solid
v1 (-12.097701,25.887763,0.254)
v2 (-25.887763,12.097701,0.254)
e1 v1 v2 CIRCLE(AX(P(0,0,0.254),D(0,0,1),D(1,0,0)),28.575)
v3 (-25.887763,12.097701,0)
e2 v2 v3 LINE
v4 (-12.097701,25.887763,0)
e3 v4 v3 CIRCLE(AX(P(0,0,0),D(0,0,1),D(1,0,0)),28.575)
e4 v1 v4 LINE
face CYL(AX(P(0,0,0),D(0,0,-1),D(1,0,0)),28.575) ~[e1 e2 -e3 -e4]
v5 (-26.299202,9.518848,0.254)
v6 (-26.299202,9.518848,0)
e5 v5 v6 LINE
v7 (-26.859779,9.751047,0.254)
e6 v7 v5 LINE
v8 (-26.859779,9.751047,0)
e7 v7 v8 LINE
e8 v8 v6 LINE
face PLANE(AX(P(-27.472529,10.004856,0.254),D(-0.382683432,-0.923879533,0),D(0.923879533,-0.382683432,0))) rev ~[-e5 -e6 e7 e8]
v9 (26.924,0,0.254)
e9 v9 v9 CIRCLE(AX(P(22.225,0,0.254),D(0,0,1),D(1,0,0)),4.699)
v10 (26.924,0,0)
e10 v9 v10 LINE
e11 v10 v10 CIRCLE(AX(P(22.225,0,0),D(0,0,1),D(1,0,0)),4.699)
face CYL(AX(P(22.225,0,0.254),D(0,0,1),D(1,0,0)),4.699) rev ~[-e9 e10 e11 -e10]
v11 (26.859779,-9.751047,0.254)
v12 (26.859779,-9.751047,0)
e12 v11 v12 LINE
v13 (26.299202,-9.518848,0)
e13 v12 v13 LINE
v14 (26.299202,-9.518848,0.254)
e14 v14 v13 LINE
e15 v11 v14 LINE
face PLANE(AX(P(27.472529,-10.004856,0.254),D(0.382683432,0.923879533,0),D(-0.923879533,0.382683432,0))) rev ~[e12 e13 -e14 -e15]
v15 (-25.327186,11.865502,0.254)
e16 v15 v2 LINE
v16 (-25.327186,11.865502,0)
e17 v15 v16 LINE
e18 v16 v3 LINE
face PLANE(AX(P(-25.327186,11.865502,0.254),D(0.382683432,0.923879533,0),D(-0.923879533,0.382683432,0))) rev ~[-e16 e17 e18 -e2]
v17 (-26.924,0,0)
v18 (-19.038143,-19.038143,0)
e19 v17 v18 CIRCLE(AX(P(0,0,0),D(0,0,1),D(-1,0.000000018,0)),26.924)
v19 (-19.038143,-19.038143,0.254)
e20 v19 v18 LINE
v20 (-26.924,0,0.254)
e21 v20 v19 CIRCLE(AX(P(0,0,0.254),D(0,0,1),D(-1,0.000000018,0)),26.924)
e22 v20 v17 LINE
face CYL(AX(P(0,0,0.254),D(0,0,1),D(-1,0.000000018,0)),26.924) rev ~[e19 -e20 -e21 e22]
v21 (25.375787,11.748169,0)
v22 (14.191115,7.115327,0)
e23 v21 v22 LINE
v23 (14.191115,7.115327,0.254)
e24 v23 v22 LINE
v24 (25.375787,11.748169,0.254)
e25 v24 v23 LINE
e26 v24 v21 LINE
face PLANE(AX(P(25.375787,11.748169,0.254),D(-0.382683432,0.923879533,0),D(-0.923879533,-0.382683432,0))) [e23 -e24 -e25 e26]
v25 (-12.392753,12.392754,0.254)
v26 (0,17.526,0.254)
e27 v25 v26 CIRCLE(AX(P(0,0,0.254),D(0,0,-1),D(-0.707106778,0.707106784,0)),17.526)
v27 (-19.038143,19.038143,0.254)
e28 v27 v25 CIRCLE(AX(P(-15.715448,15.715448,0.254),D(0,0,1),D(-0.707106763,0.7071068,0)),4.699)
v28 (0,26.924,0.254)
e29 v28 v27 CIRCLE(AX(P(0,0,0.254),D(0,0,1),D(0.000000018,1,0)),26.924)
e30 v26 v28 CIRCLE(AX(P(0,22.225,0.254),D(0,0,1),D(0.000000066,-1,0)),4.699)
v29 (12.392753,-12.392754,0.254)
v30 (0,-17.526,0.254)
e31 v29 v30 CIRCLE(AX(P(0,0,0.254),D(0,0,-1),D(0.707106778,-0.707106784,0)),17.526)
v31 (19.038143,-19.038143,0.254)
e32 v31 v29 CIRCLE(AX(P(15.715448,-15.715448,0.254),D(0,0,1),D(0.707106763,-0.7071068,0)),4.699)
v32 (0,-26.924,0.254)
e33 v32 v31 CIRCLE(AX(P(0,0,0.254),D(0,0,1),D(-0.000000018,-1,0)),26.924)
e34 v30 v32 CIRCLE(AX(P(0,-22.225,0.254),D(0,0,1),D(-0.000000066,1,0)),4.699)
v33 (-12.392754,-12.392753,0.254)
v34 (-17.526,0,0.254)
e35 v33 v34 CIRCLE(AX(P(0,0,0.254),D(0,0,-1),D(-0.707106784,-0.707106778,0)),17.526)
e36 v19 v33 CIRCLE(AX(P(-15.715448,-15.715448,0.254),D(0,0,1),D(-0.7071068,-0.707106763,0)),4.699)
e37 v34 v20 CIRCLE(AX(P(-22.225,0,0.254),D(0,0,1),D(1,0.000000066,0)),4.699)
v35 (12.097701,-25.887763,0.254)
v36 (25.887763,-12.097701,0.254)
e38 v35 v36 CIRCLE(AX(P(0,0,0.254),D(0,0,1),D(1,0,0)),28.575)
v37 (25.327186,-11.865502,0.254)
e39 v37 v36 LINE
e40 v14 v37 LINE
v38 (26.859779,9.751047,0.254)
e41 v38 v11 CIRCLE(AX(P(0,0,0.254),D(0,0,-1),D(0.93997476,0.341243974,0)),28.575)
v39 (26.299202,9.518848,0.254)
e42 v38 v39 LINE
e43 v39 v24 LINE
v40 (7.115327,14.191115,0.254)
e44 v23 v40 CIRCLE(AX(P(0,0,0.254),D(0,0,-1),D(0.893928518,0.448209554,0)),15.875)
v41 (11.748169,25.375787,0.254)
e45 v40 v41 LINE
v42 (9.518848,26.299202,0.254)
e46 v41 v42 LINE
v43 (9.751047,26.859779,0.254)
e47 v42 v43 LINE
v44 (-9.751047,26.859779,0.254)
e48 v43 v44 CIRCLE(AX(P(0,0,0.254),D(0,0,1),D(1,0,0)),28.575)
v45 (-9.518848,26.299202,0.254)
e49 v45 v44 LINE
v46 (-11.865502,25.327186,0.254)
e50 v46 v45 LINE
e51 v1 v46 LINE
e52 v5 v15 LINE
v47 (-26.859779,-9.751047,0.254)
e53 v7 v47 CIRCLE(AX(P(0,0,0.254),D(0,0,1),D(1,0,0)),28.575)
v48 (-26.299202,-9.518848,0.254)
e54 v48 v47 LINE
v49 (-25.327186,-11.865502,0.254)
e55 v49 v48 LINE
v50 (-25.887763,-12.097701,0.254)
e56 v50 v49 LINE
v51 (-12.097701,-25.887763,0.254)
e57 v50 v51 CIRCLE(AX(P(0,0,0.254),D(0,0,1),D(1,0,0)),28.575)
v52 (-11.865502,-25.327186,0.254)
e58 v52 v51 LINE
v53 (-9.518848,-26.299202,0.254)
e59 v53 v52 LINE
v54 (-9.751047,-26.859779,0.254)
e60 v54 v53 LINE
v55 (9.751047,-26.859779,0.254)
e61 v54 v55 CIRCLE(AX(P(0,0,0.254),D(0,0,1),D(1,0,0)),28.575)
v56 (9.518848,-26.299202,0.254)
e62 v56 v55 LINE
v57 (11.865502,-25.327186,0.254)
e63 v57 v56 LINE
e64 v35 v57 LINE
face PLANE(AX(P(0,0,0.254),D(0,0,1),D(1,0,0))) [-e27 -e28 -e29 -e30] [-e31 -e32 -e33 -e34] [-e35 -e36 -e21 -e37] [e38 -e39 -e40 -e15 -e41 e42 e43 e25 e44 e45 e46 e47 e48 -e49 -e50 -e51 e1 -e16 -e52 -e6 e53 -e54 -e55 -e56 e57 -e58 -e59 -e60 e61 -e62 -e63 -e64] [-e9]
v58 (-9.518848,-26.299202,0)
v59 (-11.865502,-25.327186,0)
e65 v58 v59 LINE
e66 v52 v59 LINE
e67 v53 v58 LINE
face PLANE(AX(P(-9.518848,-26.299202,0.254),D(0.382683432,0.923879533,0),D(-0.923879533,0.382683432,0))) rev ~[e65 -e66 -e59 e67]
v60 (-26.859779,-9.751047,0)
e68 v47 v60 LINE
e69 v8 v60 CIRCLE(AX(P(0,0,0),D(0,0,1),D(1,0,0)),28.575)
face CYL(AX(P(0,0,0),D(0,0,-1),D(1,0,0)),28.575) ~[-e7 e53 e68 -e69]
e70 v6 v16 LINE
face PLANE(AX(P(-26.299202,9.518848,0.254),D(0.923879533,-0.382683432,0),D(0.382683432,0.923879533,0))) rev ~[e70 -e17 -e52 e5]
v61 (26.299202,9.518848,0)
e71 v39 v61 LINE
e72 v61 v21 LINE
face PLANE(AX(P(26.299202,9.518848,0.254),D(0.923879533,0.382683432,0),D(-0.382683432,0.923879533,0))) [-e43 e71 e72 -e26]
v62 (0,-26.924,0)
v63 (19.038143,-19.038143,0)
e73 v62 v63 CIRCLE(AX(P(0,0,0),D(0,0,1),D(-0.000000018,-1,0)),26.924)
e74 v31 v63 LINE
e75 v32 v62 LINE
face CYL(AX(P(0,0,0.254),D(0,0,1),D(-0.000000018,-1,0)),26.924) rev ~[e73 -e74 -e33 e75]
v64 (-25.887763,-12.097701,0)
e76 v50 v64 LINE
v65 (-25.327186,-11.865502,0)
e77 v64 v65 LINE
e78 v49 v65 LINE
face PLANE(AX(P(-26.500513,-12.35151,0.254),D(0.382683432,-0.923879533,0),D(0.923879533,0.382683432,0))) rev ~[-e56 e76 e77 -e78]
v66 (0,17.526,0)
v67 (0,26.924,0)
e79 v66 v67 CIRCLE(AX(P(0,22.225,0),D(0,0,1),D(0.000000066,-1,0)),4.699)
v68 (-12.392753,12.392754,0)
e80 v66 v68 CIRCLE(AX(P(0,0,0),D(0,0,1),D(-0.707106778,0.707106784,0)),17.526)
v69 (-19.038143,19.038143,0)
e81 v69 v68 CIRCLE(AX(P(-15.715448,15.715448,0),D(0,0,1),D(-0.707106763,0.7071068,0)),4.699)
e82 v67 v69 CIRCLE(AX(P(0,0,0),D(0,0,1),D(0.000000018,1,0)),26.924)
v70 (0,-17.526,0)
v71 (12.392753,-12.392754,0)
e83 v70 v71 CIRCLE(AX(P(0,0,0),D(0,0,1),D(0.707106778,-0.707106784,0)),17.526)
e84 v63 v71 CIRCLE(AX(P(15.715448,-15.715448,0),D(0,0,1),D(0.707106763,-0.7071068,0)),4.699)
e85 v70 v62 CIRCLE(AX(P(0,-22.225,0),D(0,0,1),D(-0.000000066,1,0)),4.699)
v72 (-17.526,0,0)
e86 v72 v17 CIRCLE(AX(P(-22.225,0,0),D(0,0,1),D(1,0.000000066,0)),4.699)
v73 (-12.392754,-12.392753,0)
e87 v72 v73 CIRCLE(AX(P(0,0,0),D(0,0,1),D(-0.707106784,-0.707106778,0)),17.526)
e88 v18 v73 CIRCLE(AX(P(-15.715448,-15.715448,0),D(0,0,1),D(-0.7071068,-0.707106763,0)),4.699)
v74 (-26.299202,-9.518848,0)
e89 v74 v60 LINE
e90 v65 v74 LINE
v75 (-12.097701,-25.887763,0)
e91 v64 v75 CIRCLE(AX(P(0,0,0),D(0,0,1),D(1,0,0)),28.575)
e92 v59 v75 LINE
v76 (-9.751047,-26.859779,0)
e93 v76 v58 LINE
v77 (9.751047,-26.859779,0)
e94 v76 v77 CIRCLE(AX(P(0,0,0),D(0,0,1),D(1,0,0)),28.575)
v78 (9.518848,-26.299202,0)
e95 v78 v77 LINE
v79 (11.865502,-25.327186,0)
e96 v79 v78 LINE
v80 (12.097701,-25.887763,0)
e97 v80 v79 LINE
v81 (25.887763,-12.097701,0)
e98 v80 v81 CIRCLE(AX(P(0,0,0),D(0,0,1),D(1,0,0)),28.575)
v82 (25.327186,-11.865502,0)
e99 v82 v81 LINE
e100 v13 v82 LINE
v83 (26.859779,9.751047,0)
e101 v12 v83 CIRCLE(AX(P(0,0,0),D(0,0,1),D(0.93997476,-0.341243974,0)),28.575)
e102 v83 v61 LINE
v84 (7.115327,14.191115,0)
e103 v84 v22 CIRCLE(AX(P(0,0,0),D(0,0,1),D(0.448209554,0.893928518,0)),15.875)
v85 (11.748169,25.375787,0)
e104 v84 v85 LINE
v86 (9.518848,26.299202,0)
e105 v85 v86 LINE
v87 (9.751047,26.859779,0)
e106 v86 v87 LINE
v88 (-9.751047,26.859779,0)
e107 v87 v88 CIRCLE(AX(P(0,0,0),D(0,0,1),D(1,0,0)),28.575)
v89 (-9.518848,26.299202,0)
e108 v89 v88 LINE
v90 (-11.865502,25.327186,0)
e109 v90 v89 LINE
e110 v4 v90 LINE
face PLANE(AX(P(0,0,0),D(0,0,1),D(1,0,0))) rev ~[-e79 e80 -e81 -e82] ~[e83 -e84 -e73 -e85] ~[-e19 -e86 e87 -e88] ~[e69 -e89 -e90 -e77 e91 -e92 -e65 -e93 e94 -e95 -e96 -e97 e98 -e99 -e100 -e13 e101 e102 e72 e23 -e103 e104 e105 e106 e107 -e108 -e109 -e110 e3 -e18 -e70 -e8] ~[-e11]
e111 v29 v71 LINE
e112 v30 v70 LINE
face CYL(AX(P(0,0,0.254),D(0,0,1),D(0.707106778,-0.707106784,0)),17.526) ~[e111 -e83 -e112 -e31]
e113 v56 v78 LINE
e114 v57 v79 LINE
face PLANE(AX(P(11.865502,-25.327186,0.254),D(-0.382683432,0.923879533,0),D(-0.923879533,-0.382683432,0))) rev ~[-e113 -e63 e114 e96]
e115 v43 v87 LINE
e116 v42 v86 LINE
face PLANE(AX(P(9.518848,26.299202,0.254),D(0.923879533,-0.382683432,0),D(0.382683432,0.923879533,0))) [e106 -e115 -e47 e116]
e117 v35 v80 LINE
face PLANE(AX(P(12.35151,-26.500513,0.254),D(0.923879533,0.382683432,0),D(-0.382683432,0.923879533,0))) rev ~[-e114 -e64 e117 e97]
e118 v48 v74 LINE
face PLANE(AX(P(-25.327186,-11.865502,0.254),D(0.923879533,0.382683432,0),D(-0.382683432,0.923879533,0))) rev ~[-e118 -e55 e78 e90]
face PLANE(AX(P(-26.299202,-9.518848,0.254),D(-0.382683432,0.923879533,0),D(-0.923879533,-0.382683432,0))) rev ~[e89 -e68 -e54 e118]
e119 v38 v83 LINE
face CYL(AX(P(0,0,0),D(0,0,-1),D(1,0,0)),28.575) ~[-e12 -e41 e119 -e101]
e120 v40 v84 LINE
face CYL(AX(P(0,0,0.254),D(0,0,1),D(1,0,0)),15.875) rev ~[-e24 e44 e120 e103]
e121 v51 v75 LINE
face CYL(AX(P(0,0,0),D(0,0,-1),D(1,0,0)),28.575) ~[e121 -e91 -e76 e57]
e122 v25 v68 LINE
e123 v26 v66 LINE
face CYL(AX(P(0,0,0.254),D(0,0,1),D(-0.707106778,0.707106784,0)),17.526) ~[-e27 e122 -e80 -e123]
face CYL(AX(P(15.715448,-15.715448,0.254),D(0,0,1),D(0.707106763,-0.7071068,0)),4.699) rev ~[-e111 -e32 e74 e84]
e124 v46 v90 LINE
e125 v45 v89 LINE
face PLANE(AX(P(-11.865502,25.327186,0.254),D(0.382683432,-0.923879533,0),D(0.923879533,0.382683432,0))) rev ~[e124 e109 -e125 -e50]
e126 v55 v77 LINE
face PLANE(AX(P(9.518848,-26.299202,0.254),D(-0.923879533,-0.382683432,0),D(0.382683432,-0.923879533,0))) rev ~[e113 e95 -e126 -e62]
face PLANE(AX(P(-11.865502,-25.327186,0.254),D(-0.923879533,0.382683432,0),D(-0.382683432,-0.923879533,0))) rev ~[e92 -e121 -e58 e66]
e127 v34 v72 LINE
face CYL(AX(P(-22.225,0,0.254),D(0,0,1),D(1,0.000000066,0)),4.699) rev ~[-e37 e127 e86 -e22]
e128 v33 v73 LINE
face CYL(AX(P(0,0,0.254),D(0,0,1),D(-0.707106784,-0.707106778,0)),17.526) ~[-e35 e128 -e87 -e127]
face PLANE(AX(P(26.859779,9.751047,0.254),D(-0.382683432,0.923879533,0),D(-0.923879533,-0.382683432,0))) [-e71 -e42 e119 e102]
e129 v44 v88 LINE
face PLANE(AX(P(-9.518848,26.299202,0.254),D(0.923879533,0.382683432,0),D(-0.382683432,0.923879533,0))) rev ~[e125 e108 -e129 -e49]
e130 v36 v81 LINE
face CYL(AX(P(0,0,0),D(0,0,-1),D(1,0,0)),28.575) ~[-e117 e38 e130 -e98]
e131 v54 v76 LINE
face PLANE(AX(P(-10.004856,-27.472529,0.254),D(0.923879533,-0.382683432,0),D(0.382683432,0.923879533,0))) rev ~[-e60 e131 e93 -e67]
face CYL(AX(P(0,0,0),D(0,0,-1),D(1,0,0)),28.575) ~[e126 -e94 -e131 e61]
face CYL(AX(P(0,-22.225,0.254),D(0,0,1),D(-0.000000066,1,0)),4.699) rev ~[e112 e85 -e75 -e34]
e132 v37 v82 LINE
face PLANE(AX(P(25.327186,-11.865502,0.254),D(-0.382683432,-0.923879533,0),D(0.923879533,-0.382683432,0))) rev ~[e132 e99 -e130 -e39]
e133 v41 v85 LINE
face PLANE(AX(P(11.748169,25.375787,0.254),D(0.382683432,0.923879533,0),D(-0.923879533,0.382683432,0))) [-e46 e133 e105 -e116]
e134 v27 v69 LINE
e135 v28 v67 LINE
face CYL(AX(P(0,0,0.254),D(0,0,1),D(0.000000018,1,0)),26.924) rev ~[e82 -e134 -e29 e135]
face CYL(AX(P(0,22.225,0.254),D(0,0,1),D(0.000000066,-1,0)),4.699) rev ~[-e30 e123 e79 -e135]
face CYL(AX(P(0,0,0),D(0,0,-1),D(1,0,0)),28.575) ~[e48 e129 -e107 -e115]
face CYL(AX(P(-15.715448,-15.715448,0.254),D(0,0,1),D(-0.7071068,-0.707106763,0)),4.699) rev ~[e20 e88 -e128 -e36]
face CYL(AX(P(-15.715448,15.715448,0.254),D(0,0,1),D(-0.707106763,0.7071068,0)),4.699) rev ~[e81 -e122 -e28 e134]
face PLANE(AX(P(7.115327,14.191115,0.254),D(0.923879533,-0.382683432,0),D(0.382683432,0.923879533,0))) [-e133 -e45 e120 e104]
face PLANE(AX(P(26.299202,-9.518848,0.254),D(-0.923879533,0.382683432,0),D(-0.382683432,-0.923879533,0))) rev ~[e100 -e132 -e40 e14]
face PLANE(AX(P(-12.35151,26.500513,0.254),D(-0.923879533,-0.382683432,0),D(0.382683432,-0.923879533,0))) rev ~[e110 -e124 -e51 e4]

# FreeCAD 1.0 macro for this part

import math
import FreeCAD as App
import Part
import Sketcher
Q = App.Units.Quantity


def add_polygon(sketch, points):
    """Adds a closed chain of lines whose ends are joined by coincident constraints."""
    first, n = sketch.GeometryCount, len(points)
    for a, b in zip(points, points[1:] + points[:1]):
        sketch.addGeometry(Part.LineSegment(App.Vector(*a, 0), App.Vector(*b, 0)), False)
    for i in range(n):
        sketch.addConstraint(Sketcher.Constraint("Coincident", first + i, 2, first + (i + 1) % n, 1))

doc = App.newDocument("Part")
body = doc.addObject("PartDesign::Body", "Body")

# Sketch on XY plane
sketch1 = doc.addObject("Sketcher::SketchObject", "Sketch")
body.addObject(sketch1)
sketch1.AttachmentSupport = (doc.XY_Plane, [""])
sketch1.MapMode = "FlatFace"
sketch1.addGeometry(Part.Circle(App.Vector(0, 0, 0), App.Vector(0, 0, 1), 29), False)
sketch1.addConstraint([
    Sketcher.Constraint("Coincident", 0, 3, -1, 1),
    Sketcher.Constraint("Diameter", 0, Q("2.25 in")),
])
pad1 = doc.addObject("PartDesign::Pad", "Pad")
body.addObject(pad1)
pad1.Profile = sketch1
pad1.Length = Q("0.01 in")

# Sketch on XY plane
sketch2 = doc.addObject("Sketcher::SketchObject", "Sketch001")
body.addObject(sketch2)
sketch2.AttachmentSupport = (doc.XY_Plane, [""])
sketch2.MapMode = "FlatFace"
sketch2.AttachmentOffset = App.Placement(App.Vector(0, 0, 0.01 * 25.4), App.Rotation())
sketch2.addGeometry(Part.Circle(App.Vector(0, 0, 0), App.Vector(0, 0, 1), 16), False)
sketch2.addConstraint([
    Sketcher.Constraint("Coincident", 0, 3, -1, 1),
    Sketcher.Constraint("Diameter", 0, Q("1.25 in")),
])
pocket1 = doc.addObject("PartDesign::Pocket", "Pocket")
body.addObject(pocket1)
pocket1.Profile = sketch2
pocket1.Type = "ThroughAll"

# Sketch on XY plane
sketch3 = doc.addObject("Sketcher::SketchObject", "Sketch002")
body.addObject(sketch3)
sketch3.AttachmentSupport = (doc.XY_Plane, [""])
sketch3.MapMode = "FlatFace"
sketch3.AttachmentOffset = App.Placement(App.Vector(0, 0, 0.01 * 25.4), App.Rotation())
sketch3.addGeometry([
    Part.Circle(App.Vector(22.2, 0, 0), App.Vector(0, 0, 1), 4.7),  # 0
    Part.ArcOfCircle(Part.Circle(App.Vector(15.7, -15.7, 0), App.Vector(0, 0, 1), 4.7), math.radians(-45), math.radians(135)),  # 1
    Part.ArcOfCircle(Part.Circle(App.Vector(0, 0, 0), App.Vector(0, 0, 1), 17.5), math.radians(-90), math.radians(-45)),  # 2
    Part.ArcOfCircle(Part.Circle(App.Vector(0, -22.2, 0), App.Vector(0, 0, 1), 4.7), math.radians(90), math.radians(270)),  # 3
    Part.ArcOfCircle(Part.Circle(App.Vector(0, 0, 0), App.Vector(0, 0, 1), 26.9), math.radians(-90), math.radians(-45)),  # 4
    Part.ArcOfCircle(Part.Circle(App.Vector(-15.7, -15.7, 0), App.Vector(0, 0, 1), 4.7), math.radians(-135), math.radians(45)),  # 5
    Part.ArcOfCircle(Part.Circle(App.Vector(0, 0, 0), App.Vector(0, 0, 1), 17.5), math.radians(180), math.radians(225)),  # 6
    Part.ArcOfCircle(Part.Circle(App.Vector(-22.2, 0, 0), App.Vector(0, 0, 1), 4.7), math.radians(0), math.radians(180)),  # 7
    Part.ArcOfCircle(Part.Circle(App.Vector(0, 0, 0), App.Vector(0, 0, 1), 26.9), math.radians(180), math.radians(225)),  # 8
    Part.ArcOfCircle(Part.Circle(App.Vector(-15.7, 15.7, 0), App.Vector(0, 0, 1), 4.7), math.radians(135), math.radians(315)),  # 9
    Part.ArcOfCircle(Part.Circle(App.Vector(0, 0, 0), App.Vector(0, 0, 1), 17.5), math.radians(90), math.radians(135)),  # 10
    Part.ArcOfCircle(Part.Circle(App.Vector(0, 22.2, 0), App.Vector(0, 0, 1), 4.7), math.radians(-90), math.radians(90)),  # 11
    Part.ArcOfCircle(Part.Circle(App.Vector(0, 0, 0), App.Vector(0, 0, 1), 26.9), math.radians(90), math.radians(135)),  # 12
], False)
sketch3.addConstraint([
    Sketcher.Constraint("Tangent", 1, 2, 2, 2),
    Sketcher.Constraint("Tangent", 2, 1, 3, 1),
    Sketcher.Constraint("Tangent", 3, 2, 4, 1),
    Sketcher.Constraint("Tangent", 4, 2, 1, 1),
    Sketcher.Constraint("Tangent", 5, 2, 6, 2),
    Sketcher.Constraint("Tangent", 6, 1, 7, 1),
    Sketcher.Constraint("Tangent", 7, 2, 8, 1),
    Sketcher.Constraint("Tangent", 8, 2, 5, 1),
    Sketcher.Constraint("Tangent", 9, 2, 10, 2),
    Sketcher.Constraint("Tangent", 10, 1, 11, 1),
    Sketcher.Constraint("Tangent", 11, 2, 12, 1),
    Sketcher.Constraint("Tangent", 12, 2, 9, 1),
    Sketcher.Constraint("Coincident", 2, 3, -1, 1),
    Sketcher.Constraint("Coincident", 4, 3, -1, 1),
    Sketcher.Constraint("Coincident", 6, 3, -1, 1),
    Sketcher.Constraint("Coincident", 8, 3, -1, 1),
    Sketcher.Constraint("Coincident", 10, 3, -1, 1),
    Sketcher.Constraint("Coincident", 12, 3, -1, 1),
    Sketcher.Constraint("Equal", 0, 1),
    Sketcher.Constraint("Equal", 3, 5),
    Sketcher.Constraint("Equal", 2, 6),
    Sketcher.Constraint("Equal", 7, 9),
    Sketcher.Constraint("Equal", 6, 10),
    Sketcher.Constraint("Symmetric", 0, 3, 7, 3, -1, 1),
    Sketcher.Constraint("PointOnObject", 0, 3, -1),
    Sketcher.Constraint("PointOnObject", 3, 3, -2),
    Sketcher.Constraint("PointOnObject", 11, 3, -2),
    Sketcher.Constraint("Horizontal", 1, 3, 5, 3),
    Sketcher.Constraint("Vertical", 5, 3, 9, 3),
    Sketcher.Constraint("Diameter", 0, Q("0.37 in")),
    Sketcher.Constraint("Radius", 2, Q("0.69 in")),
    Sketcher.Constraint("DistanceX", -1, 1, 1, 3, 15.715448),
])
pocket2 = doc.addObject("PartDesign::Pocket", "Pocket001")
body.addObject(pocket2)
pocket2.Profile = sketch3
pocket2.Type = "ThroughAll"

# Sketch on XY plane
sketch4 = doc.addObject("Sketcher::SketchObject", "Sketch003")
body.addObject(sketch4)
sketch4.AttachmentSupport = (doc.XY_Plane, [""])
sketch4.MapMode = "FlatFace"
sketch4.AttachmentOffset = App.Placement(App.Vector(0, 0, 0.01 * 25.4), App.Rotation())
sketch4.addGeometry(Part.LineSegment(App.Vector(9.5, 26.3, 0), App.Vector(11.7, 25.4, 0)), False)  # 0
sketch4.addGeometry(Part.LineSegment(App.Vector(11.7, 25.4, 0), App.Vector(7.1, 14.2, 0)), False)  # 1
sketch4.addGeometry(Part.ArcOfCircle(Part.Circle(App.Vector(0, 0, 0), App.Vector(0, 0, 1), 15.9), math.radians(27), math.radians(63)), False)  # 2
sketch4.addGeometry(Part.LineSegment(App.Vector(14.2, 7.1, 0), App.Vector(25.4, 11.7, 0)), False)  # 3
sketch4.addGeometry(Part.LineSegment(App.Vector(25.4, 11.7, 0), App.Vector(26.3, 9.5, 0)), False)  # 4
sketch4.addGeometry(Part.LineSegment(App.Vector(26.3, 9.5, 0), App.Vector(26.9, 9.8, 0)), False)  # 5
sketch4.addGeometry(Part.ArcOfCircle(Part.Circle(App.Vector(0, 0, 0), App.Vector(0, 0, 1), 28.6), math.radians(20), math.radians(70)), False)  # 6
sketch4.addGeometry(Part.LineSegment(App.Vector(9.8, 26.9, 0), App.Vector(9.5, 26.3, 0)), False)  # 7
add_polygon(sketch4, [(-10, 27.5), (-12.4, 26.5), (-11.9, 25.3), (-9.5, 26.3)])  # lines 8-11
add_polygon(sketch4, [(-26.5, 12.4), (-27.5, 10), (-26.3, 9.5), (-25.3, 11.9)])  # lines 12-15
add_polygon(sketch4, [(-27.5, -10), (-26.5, -12.4), (-25.3, -11.9), (-26.3, -9.5)])  # lines 16-19
add_polygon(sketch4, [(-12.4, -26.5), (-10, -27.5), (-9.5, -26.3), (-11.9, -25.3)])  # lines 20-23
add_polygon(sketch4, [(10, -27.5), (12.4, -26.5), (11.9, -25.3), (9.5, -26.3)])  # lines 24-27
add_polygon(sketch4, [(26.5, -12.4), (27.5, -10), (26.3, -9.5), (25.3, -11.9)])  # lines 28-31
sketch4.addConstraint([
    Sketcher.Constraint("Coincident", 0, 2, 1, 1),
    Sketcher.Constraint("Coincident", 1, 2, 2, 2),
    Sketcher.Constraint("Coincident", 2, 1, 3, 1),
    Sketcher.Constraint("Coincident", 3, 2, 4, 1),
    Sketcher.Constraint("Coincident", 4, 2, 5, 1),
    Sketcher.Constraint("Coincident", 5, 2, 6, 1),
    Sketcher.Constraint("Coincident", 6, 2, 7, 1),
    Sketcher.Constraint("Coincident", 7, 2, 0, 1),
    Sketcher.Constraint("Coincident", 2, 3, -1, 1),
    Sketcher.Constraint("Coincident", 6, 3, -1, 1),
    Sketcher.Constraint("Symmetric", 4, 2, 18, 2, -1, 1),
    Sketcher.Constraint("Symmetric", 7, 2, 21, 2, -1, 1),
    Sketcher.Constraint("Symmetric", 8, 2, 24, 2, -1, 1),
    Sketcher.Constraint("Symmetric", 9, 2, 25, 2, -1, 1),
    Sketcher.Constraint("Symmetric", 10, 2, 26, 2, -1, 1),
    Sketcher.Constraint("Symmetric", 11, 2, 27, 2, -1, 1),
    Sketcher.Constraint("Symmetric", 12, 2, 28, 2, -1, 1),
    Sketcher.Constraint("Symmetric", 13, 2, 29, 2, -1, 1),
    Sketcher.Constraint("Symmetric", 14, 2, 30, 2, -1, 1),
    Sketcher.Constraint("Symmetric", 15, 2, 31, 2, -1, 1),
    Sketcher.Constraint("Symmetric", 7, 2, 10, 2, -2),
    Sketcher.Constraint("Symmetric", 4, 2, 13, 2, -2),
    Sketcher.Constraint("Symmetric", 23, 2, 24, 2, -2),
    Sketcher.Constraint("Symmetric", 22, 2, 25, 2, -2),
    Sketcher.Constraint("Symmetric", 20, 2, 27, 2, -2),
    Sketcher.Constraint("Symmetric", 19, 2, 28, 2, -2),
    Sketcher.Constraint("Symmetric", 17, 2, 30, 2, -2),
    Sketcher.Constraint("Symmetric", 16, 2, 31, 2, -2),
    Sketcher.Constraint("Perpendicular", 0, 1),
    Sketcher.Constraint("Perpendicular", 3, 4),
    Sketcher.Constraint("Perpendicular", 4, 5),
    Sketcher.Constraint("Parallel", 1, 7),
    Sketcher.Constraint("Parallel", 5, 8),
    Sketcher.Constraint("Perpendicular", 8, 9),
    Sketcher.Constraint("Perpendicular", 9, 10),
    Sketcher.Constraint("Perpendicular", 10, 11),
    Sketcher.Constraint("Parallel", 7, 12),
    Sketcher.Constraint("Perpendicular", 12, 13),
    Sketcher.Constraint("Perpendicular", 13, 14),
    Sketcher.Constraint("Perpendicular", 14, 15),
    Sketcher.Constraint("Parallel", 11, 16),
    Sketcher.Constraint("Equal", 1, 3),
    Sketcher.Constraint("Equal", 0, 4),
    Sketcher.Constraint("Equal", 5, 7),
    Sketcher.Constraint("Equal", 10, 12),
    Sketcher.Constraint("Equal", 11, 13),
    Sketcher.Constraint("Radius", 2, Q("0.625 in")),
    Sketcher.Constraint("Radius", 6, Q("1.125 in")),
    Sketcher.Constraint("Distance", 8, Q("0.1 in")),
    Sketcher.Constraint("Angle", 0, Q("-22.5 deg")),
    Sketcher.Constraint("Distance", 9, Q("0.05 in")),
    Sketcher.Constraint("Distance", 0, Q("0.095 in")),
    Sketcher.Constraint("Distance", 1, 12.106201),
    Sketcher.Constraint("DistanceY", 4, 2, 5, 2, 0.232198),
])
pocket3 = doc.addObject("PartDesign::Pocket", "Pocket002")
body.addObject(pocket3)
pocket3.Profile = sketch4
pocket3.Type = "ThroughAll"

doc.recompute()
